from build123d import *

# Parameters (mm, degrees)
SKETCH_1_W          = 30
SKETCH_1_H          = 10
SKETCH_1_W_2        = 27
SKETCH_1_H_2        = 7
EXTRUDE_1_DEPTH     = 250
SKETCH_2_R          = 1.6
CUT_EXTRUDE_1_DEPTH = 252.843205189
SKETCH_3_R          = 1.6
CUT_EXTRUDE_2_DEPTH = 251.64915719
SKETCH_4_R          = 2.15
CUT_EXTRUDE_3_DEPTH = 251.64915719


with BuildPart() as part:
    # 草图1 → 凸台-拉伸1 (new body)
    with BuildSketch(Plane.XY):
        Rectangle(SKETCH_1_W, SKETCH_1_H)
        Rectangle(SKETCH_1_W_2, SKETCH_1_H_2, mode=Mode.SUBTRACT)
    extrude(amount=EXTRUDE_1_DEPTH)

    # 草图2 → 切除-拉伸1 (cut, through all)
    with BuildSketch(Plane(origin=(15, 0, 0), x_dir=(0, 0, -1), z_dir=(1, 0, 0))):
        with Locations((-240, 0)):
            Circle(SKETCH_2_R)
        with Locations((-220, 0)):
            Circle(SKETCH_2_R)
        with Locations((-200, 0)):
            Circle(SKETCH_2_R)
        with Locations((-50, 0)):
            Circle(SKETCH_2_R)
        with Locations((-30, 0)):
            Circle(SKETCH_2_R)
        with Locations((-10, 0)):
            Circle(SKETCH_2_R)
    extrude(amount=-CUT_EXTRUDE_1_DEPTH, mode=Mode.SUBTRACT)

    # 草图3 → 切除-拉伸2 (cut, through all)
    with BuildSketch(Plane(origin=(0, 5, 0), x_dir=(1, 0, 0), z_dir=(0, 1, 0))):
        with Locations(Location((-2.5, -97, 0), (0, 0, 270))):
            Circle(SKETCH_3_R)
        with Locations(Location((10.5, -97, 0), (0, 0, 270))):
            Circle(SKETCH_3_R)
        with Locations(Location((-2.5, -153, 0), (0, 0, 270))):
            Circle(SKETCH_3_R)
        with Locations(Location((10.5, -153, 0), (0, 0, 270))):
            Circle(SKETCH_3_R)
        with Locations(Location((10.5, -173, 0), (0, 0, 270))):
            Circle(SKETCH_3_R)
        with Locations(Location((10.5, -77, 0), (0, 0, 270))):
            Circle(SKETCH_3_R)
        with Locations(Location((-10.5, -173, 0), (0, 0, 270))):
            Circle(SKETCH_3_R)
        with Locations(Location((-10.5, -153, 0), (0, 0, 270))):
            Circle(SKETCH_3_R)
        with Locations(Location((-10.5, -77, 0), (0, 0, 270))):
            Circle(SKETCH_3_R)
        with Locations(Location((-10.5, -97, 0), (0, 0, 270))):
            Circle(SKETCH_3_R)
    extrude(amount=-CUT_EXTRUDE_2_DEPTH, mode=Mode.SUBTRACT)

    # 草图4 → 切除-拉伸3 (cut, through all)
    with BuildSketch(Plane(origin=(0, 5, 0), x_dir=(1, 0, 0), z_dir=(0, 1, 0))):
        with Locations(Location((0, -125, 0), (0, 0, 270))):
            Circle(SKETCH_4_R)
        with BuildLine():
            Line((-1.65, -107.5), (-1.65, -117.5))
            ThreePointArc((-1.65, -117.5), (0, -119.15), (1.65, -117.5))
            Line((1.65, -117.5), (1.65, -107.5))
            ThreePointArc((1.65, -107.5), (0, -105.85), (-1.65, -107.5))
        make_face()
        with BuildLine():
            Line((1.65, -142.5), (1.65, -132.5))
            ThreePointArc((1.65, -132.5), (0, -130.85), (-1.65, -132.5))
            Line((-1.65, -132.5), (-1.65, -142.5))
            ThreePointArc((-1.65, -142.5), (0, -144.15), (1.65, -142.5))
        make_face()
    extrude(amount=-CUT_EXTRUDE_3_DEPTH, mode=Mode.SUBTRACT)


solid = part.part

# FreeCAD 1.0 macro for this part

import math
import FreeCAD as App
import Part
import Sketcher

doc = App.newDocument("Part")
params = doc.addObject("Spreadsheet::Sheet", "Params")
for row, (alias, value) in enumerate([
    ("sketch1_width", "30 mm"),
    ("sketch1_width2", "27 mm"),
    ("sketch1_height", "10 mm"),
    ("sketch1_height2", "7 mm"),
    ("pad1_length", "250 mm"),
    ("sketch2_diameter", "3.2 mm"),
    ("sketch3_diameter", "3.2 mm"),
    ("sketch4_diameter", "4.3 mm"),
    ("sketch4_height", "10 mm"),
    ("sketch4_radius", "1.65 mm"),
], start=1):
    params.set(f"A{row}", alias)
    params.set(f"B{row}", "=" + value)
    params.setAlias(f"B{row}", alias)

body = doc.addObject("PartDesign::Body", "Body")

# Sketch on XY plane
sketch1 = doc.addObject("Sketcher::SketchObject", "Sketch")
body.addObject(sketch1)
sketch1.AttachmentSupport = (doc.XY_Plane, [""])
sketch1.MapMode = "FlatFace"
sketch1.addGeometry([
    Part.LineSegment(App.Vector(-15, 5, 0), App.Vector(-15, -5, 0)),  # 0
    Part.LineSegment(App.Vector(-15, -5, 0), App.Vector(15, -5, 0)),  # 1
    Part.LineSegment(App.Vector(15, -5, 0), App.Vector(15, 5, 0)),  # 2
    Part.LineSegment(App.Vector(15, 5, 0), App.Vector(-15, 5, 0)),  # 3
    Part.LineSegment(App.Vector(14, -4, 0), App.Vector(-14, -4, 0)),  # 4
    Part.LineSegment(App.Vector(-14, -4, 0), App.Vector(-14, 4, 0)),  # 5
    Part.LineSegment(App.Vector(-14, 4, 0), App.Vector(14, 4, 0)),  # 6
    Part.LineSegment(App.Vector(14, 4, 0), App.Vector(14, -4, 0)),  # 7
], False)
sketch1.addConstraint([
    Sketcher.Constraint("Coincident", 0, 2, 1, 1),
    Sketcher.Constraint("Coincident", 1, 2, 2, 1),
    Sketcher.Constraint("Coincident", 2, 2, 3, 1),
    Sketcher.Constraint("Coincident", 3, 2, 0, 1),
    Sketcher.Constraint("Coincident", 4, 2, 5, 1),
    Sketcher.Constraint("Coincident", 5, 2, 6, 1),
    Sketcher.Constraint("Coincident", 6, 2, 7, 1),
    Sketcher.Constraint("Coincident", 7, 2, 4, 1),
    Sketcher.Constraint("Vertical", 0),
    Sketcher.Constraint("Horizontal", 1),
    Sketcher.Constraint("Vertical", 2),
    Sketcher.Constraint("Horizontal", 3),
    Sketcher.Constraint("Horizontal", 4),
    Sketcher.Constraint("Vertical", 5),
    Sketcher.Constraint("Horizontal", 6),
    Sketcher.Constraint("Vertical", 7),
    Sketcher.Constraint("Symmetric", 0, 2, 2, 2, -1, 1),
    Sketcher.Constraint("Symmetric", 4, 2, 6, 2, -1, 1),
    Sketcher.Constraint("DistanceX", 1, 1, 1, 2, 30.0),
    Sketcher.Constraint("DistanceX", 4, 2, 4, 1, 27.0),
    Sketcher.Constraint("DistanceY", 0, 2, 0, 1, 10.0),
    Sketcher.Constraint("DistanceY", 5, 1, 5, 2, 7.0),
])
sketch1.setExpression("Constraints[18]", "Params.sketch1_width")
sketch1.setExpression("Constraints[19]", "Params.sketch1_width2")
sketch1.setExpression("Constraints[20]", "Params.sketch1_height")
sketch1.setExpression("Constraints[21]", "Params.sketch1_height2")
pad1 = doc.addObject("PartDesign::Pad", "Pad")
body.addObject(pad1)
pad1.Profile = sketch1
pad1.setExpression("Length", "Params.pad1_length")

# Sketch on YZ plane
sketch2 = doc.addObject("Sketcher::SketchObject", "Sketch001")
body.addObject(sketch2)
sketch2.AttachmentSupport = (doc.YZ_Plane, [""])
sketch2.MapMode = "FlatFace"
sketch2.AttachmentOffset = App.Placement(App.Vector(0, 0, 15), App.Rotation())
sketch2.addGeometry([
    Part.Circle(App.Vector(0, 240, 0), App.Vector(0, 0, 1), 1.6),  # 0
    Part.Circle(App.Vector(0, 220, 0), App.Vector(0, 0, 1), 1.6),  # 1
    Part.Circle(App.Vector(0, 200, 0), App.Vector(0, 0, 1), 1.6),  # 2
    Part.Circle(App.Vector(0, 50, 0), App.Vector(0, 0, 1), 1.6),  # 3
    Part.Circle(App.Vector(0, 30, 0), App.Vector(0, 0, 1), 1.6),  # 4
    Part.Circle(App.Vector(0, 10, 0), App.Vector(0, 0, 1), 1.6),  # 5
], False)
sketch2.addConstraint([
    Sketcher.Constraint("Equal", 0, 1),
    Sketcher.Constraint("Equal", 1, 2),
    Sketcher.Constraint("Equal", 2, 3),
    Sketcher.Constraint("Equal", 3, 4),
    Sketcher.Constraint("Equal", 4, 5),
    Sketcher.Constraint("PointOnObject", 0, 3, -2),
    Sketcher.Constraint("PointOnObject", 1, 3, -2),
    Sketcher.Constraint("PointOnObject", 2, 3, -2),
    Sketcher.Constraint("PointOnObject", 3, 3, -2),
    Sketcher.Constraint("PointOnObject", 4, 3, -2),
    Sketcher.Constraint("PointOnObject", 5, 3, -2),
    Sketcher.Constraint("Diameter", 0, 3.2),
    Sketcher.Constraint("DistanceY", -1, 1, 0, 3, 240.0),
    Sketcher.Constraint("DistanceY", -1, 1, 1, 3, 220.0),
    Sketcher.Constraint("DistanceY", -1, 1, 2, 3, 200.0),
    Sketcher.Constraint("DistanceY", -1, 1, 3, 3, 50.0),
    Sketcher.Constraint("DistanceY", -1, 1, 4, 3, 30.0),
    Sketcher.Constraint("DistanceY", -1, 1, 5, 3, 10.0),
])
sketch2.setExpression("Constraints[11]", "Params.sketch2_diameter")
pocket1 = doc.addObject("PartDesign::Pocket", "Pocket")
body.addObject(pocket1)
pocket1.Profile = sketch2
pocket1.Type = "ThroughAll"

# Sketch on XZ plane
sketch3 = doc.addObject("Sketcher::SketchObject", "Sketch002")
body.addObject(sketch3)
sketch3.AttachmentSupport = (doc.XZ_Plane, [""])
sketch3.MapMode = "FlatFace"
sketch3.AttachmentOffset = App.Placement(App.Vector(0, 0, -5), App.Rotation())
sketch3.addGeometry([
    Part.Circle(App.Vector(-2.5, 97, 0), App.Vector(0, 0, 1), 1.6),  # 0
    Part.Circle(App.Vector(10.5, 97, 0), App.Vector(0, 0, 1), 1.6),  # 1
    Part.Circle(App.Vector(-2.5, 153, 0), App.Vector(0, 0, 1), 1.6),  # 2
    Part.Circle(App.Vector(10.5, 153, 0), App.Vector(0, 0, 1), 1.6),  # 3
    Part.Circle(App.Vector(10.5, 173, 0), App.Vector(0, 0, 1), 1.6),  # 4
    Part.Circle(App.Vector(10.5, 77, 0), App.Vector(0, 0, 1), 1.6),  # 5
    Part.Circle(App.Vector(-10.5, 173, 0), App.Vector(0, 0, 1), 1.6),  # 6
    Part.Circle(App.Vector(-10.5, 153, 0), App.Vector(0, 0, 1), 1.6),  # 7
    Part.Circle(App.Vector(-10.5, 77, 0), App.Vector(0, 0, 1), 1.6),  # 8
    Part.Circle(App.Vector(-10.5, 97, 0), App.Vector(0, 0, 1), 1.6),  # 9
], False)
sketch3.addConstraint([
    Sketcher.Constraint("Equal", 0, 1),
    Sketcher.Constraint("Equal", 1, 2),
    Sketcher.Constraint("Equal", 2, 3),
    Sketcher.Constraint("Equal", 3, 4),
    Sketcher.Constraint("Equal", 4, 5),
    Sketcher.Constraint("Equal", 5, 6),
    Sketcher.Constraint("Equal", 6, 7),
    Sketcher.Constraint("Equal", 7, 8),
    Sketcher.Constraint("Equal", 8, 9),
    Sketcher.Constraint("Symmetric", 4, 3, 6, 3, -2),
    Sketcher.Constraint("Symmetric", 3, 3, 7, 3, -2),
    Sketcher.Constraint("Symmetric", 5, 3, 8, 3, -2),
    Sketcher.Constraint("Symmetric", 1, 3, 9, 3, -2),
    Sketcher.Constraint("Horizontal", 0, 3, 1, 3),
    Sketcher.Constraint("Horizontal", 2, 3, 3, 3),
    Sketcher.Constraint("Vertical", 0, 3, 2, 3),
    Sketcher.Constraint("Vertical", 1, 3, 3, 3),
    Sketcher.Constraint("Vertical", 3, 3, 4, 3),
    Sketcher.Constraint("Vertical", 4, 3, 5, 3),
    Sketcher.Constraint("Diameter", 0, 3.2),
    Sketcher.Constraint("DistanceY", -1, 1, 0, 3, 97.0),
    Sketcher.Constraint("DistanceY", -1, 1, 2, 3, 153.0),
    Sketcher.Constraint("DistanceY", -1, 1, 4, 3, 173.0),
    Sketcher.Constraint("DistanceY", -1, 1, 5, 3, 77.0),
    Sketcher.Constraint("DistanceX", 0, 3, 1, 3, 13.0),
    Sketcher.Constraint("DistanceX", 6, 3, 4, 3, 21.0),
])
sketch3.setExpression("Constraints[19]", "Params.sketch3_diameter")
pocket2 = doc.addObject("PartDesign::Pocket", "Pocket001")
body.addObject(pocket2)
pocket2.Profile = sketch3
pocket2.Type = "ThroughAll"
pocket2.Reversed = True

# Sketch on XZ plane
sketch4 = doc.addObject("Sketcher::SketchObject", "Sketch003")
body.addObject(sketch4)
sketch4.AttachmentSupport = (doc.XZ_Plane, [""])
sketch4.MapMode = "FlatFace"
sketch4.AttachmentOffset = App.Placement(App.Vector(0, 0, -5), App.Rotation())
sketch4.addGeometry([
    Part.Circle(App.Vector(0, 125, 0), App.Vector(0, 0, 1), 2.1),  # 0
    Part.LineSegment(App.Vector(-1.6, 107.5, 0), App.Vector(-1.6, 117.5, 0)),  # 1
    Part.ArcOfCircle(Part.Circle(App.Vector(0, 117.5, 0), App.Vector(0, 0, 1), 1.6), math.radians(0), math.radians(180)),  # 2
    Part.LineSegment(App.Vector(1.6, 117.5, 0), App.Vector(1.6, 107.5, 0)),  # 3
    Part.ArcOfCircle(Part.Circle(App.Vector(0, 107.5, 0), App.Vector(0, 0, 1), 1.6), math.radians(180), math.radians(360)),  # 4
    Part.LineSegment(App.Vector(1.6, 142.5, 0), App.Vector(1.6, 132.5, 0)),  # 5
    Part.ArcOfCircle(Part.Circle(App.Vector(0, 132.5, 0), App.Vector(0, 0, 1), 1.6), math.radians(180), math.radians(360)),  # 6
    Part.LineSegment(App.Vector(-1.6, 132.5, 0), App.Vector(-1.6, 142.5, 0)),  # 7
    Part.ArcOfCircle(Part.Circle(App.Vector(0, 142.5, 0), App.Vector(0, 0, 1), 1.6), math.radians(0), math.radians(180)),  # 8
], False)
sketch4.addConstraint([
    Sketcher.Constraint("Tangent", 1, 2, 2, 2),
    Sketcher.Constraint("Tangent", 2, 1, 3, 1),
    Sketcher.Constraint("Tangent", 3, 2, 4, 2),
    Sketcher.Constraint("Tangent", 4, 1, 1, 1),
    Sketcher.Constraint("Tangent", 5, 2, 6, 2),
    Sketcher.Constraint("Tangent", 6, 1, 7, 1),
    Sketcher.Constraint("Tangent", 7, 2, 8, 2),
    Sketcher.Constraint("Tangent", 8, 1, 5, 1),
    Sketcher.Constraint("Vertical", 1),
    Sketcher.Constraint("Vertical", 3),
    Sketcher.Constraint("Vertical", 5),
    Sketcher.Constraint("Vertical", 7),
    Sketcher.Constraint("Equal", 4, 6),
    Sketcher.Constraint("PointOnObject", 0, 3, -2),
    Sketcher.Constraint("PointOnObject", 2, 3, -2),
    Sketcher.Constraint("PointOnObject", 6, 3, -2),
    Sketcher.Constraint("Equal", 3, 5),
    Sketcher.Constraint("Diameter", 0, 4.3),
    Sketcher.Constraint("DistanceY", 1, 1, 1, 2, 10.0),
    Sketcher.Constraint("Radius", 2, 1.65),
    Sketcher.Constraint("DistanceY", -1, 1, 0, 3, 125.0),
    Sketcher.Constraint("DistanceY", 2, 3, 6, 3, 15.0),
    Sketcher.Constraint("DistanceY", -1, 1, 2, 3, 117.5),
])
sketch4.setExpression("Constraints[17]", "Params.sketch4_diameter")
sketch4.setExpression("Constraints[18]", "Params.sketch4_height")
sketch4.setExpression("Constraints[19]", "Params.sketch4_radius")
pocket3 = doc.addObject("PartDesign::Pocket", "Pocket002")
body.addObject(pocket3)
pocket3.Profile = sketch4
pocket3.Type = "ThroughAll"
pocket3.Reversed = True

doc.recompute()
